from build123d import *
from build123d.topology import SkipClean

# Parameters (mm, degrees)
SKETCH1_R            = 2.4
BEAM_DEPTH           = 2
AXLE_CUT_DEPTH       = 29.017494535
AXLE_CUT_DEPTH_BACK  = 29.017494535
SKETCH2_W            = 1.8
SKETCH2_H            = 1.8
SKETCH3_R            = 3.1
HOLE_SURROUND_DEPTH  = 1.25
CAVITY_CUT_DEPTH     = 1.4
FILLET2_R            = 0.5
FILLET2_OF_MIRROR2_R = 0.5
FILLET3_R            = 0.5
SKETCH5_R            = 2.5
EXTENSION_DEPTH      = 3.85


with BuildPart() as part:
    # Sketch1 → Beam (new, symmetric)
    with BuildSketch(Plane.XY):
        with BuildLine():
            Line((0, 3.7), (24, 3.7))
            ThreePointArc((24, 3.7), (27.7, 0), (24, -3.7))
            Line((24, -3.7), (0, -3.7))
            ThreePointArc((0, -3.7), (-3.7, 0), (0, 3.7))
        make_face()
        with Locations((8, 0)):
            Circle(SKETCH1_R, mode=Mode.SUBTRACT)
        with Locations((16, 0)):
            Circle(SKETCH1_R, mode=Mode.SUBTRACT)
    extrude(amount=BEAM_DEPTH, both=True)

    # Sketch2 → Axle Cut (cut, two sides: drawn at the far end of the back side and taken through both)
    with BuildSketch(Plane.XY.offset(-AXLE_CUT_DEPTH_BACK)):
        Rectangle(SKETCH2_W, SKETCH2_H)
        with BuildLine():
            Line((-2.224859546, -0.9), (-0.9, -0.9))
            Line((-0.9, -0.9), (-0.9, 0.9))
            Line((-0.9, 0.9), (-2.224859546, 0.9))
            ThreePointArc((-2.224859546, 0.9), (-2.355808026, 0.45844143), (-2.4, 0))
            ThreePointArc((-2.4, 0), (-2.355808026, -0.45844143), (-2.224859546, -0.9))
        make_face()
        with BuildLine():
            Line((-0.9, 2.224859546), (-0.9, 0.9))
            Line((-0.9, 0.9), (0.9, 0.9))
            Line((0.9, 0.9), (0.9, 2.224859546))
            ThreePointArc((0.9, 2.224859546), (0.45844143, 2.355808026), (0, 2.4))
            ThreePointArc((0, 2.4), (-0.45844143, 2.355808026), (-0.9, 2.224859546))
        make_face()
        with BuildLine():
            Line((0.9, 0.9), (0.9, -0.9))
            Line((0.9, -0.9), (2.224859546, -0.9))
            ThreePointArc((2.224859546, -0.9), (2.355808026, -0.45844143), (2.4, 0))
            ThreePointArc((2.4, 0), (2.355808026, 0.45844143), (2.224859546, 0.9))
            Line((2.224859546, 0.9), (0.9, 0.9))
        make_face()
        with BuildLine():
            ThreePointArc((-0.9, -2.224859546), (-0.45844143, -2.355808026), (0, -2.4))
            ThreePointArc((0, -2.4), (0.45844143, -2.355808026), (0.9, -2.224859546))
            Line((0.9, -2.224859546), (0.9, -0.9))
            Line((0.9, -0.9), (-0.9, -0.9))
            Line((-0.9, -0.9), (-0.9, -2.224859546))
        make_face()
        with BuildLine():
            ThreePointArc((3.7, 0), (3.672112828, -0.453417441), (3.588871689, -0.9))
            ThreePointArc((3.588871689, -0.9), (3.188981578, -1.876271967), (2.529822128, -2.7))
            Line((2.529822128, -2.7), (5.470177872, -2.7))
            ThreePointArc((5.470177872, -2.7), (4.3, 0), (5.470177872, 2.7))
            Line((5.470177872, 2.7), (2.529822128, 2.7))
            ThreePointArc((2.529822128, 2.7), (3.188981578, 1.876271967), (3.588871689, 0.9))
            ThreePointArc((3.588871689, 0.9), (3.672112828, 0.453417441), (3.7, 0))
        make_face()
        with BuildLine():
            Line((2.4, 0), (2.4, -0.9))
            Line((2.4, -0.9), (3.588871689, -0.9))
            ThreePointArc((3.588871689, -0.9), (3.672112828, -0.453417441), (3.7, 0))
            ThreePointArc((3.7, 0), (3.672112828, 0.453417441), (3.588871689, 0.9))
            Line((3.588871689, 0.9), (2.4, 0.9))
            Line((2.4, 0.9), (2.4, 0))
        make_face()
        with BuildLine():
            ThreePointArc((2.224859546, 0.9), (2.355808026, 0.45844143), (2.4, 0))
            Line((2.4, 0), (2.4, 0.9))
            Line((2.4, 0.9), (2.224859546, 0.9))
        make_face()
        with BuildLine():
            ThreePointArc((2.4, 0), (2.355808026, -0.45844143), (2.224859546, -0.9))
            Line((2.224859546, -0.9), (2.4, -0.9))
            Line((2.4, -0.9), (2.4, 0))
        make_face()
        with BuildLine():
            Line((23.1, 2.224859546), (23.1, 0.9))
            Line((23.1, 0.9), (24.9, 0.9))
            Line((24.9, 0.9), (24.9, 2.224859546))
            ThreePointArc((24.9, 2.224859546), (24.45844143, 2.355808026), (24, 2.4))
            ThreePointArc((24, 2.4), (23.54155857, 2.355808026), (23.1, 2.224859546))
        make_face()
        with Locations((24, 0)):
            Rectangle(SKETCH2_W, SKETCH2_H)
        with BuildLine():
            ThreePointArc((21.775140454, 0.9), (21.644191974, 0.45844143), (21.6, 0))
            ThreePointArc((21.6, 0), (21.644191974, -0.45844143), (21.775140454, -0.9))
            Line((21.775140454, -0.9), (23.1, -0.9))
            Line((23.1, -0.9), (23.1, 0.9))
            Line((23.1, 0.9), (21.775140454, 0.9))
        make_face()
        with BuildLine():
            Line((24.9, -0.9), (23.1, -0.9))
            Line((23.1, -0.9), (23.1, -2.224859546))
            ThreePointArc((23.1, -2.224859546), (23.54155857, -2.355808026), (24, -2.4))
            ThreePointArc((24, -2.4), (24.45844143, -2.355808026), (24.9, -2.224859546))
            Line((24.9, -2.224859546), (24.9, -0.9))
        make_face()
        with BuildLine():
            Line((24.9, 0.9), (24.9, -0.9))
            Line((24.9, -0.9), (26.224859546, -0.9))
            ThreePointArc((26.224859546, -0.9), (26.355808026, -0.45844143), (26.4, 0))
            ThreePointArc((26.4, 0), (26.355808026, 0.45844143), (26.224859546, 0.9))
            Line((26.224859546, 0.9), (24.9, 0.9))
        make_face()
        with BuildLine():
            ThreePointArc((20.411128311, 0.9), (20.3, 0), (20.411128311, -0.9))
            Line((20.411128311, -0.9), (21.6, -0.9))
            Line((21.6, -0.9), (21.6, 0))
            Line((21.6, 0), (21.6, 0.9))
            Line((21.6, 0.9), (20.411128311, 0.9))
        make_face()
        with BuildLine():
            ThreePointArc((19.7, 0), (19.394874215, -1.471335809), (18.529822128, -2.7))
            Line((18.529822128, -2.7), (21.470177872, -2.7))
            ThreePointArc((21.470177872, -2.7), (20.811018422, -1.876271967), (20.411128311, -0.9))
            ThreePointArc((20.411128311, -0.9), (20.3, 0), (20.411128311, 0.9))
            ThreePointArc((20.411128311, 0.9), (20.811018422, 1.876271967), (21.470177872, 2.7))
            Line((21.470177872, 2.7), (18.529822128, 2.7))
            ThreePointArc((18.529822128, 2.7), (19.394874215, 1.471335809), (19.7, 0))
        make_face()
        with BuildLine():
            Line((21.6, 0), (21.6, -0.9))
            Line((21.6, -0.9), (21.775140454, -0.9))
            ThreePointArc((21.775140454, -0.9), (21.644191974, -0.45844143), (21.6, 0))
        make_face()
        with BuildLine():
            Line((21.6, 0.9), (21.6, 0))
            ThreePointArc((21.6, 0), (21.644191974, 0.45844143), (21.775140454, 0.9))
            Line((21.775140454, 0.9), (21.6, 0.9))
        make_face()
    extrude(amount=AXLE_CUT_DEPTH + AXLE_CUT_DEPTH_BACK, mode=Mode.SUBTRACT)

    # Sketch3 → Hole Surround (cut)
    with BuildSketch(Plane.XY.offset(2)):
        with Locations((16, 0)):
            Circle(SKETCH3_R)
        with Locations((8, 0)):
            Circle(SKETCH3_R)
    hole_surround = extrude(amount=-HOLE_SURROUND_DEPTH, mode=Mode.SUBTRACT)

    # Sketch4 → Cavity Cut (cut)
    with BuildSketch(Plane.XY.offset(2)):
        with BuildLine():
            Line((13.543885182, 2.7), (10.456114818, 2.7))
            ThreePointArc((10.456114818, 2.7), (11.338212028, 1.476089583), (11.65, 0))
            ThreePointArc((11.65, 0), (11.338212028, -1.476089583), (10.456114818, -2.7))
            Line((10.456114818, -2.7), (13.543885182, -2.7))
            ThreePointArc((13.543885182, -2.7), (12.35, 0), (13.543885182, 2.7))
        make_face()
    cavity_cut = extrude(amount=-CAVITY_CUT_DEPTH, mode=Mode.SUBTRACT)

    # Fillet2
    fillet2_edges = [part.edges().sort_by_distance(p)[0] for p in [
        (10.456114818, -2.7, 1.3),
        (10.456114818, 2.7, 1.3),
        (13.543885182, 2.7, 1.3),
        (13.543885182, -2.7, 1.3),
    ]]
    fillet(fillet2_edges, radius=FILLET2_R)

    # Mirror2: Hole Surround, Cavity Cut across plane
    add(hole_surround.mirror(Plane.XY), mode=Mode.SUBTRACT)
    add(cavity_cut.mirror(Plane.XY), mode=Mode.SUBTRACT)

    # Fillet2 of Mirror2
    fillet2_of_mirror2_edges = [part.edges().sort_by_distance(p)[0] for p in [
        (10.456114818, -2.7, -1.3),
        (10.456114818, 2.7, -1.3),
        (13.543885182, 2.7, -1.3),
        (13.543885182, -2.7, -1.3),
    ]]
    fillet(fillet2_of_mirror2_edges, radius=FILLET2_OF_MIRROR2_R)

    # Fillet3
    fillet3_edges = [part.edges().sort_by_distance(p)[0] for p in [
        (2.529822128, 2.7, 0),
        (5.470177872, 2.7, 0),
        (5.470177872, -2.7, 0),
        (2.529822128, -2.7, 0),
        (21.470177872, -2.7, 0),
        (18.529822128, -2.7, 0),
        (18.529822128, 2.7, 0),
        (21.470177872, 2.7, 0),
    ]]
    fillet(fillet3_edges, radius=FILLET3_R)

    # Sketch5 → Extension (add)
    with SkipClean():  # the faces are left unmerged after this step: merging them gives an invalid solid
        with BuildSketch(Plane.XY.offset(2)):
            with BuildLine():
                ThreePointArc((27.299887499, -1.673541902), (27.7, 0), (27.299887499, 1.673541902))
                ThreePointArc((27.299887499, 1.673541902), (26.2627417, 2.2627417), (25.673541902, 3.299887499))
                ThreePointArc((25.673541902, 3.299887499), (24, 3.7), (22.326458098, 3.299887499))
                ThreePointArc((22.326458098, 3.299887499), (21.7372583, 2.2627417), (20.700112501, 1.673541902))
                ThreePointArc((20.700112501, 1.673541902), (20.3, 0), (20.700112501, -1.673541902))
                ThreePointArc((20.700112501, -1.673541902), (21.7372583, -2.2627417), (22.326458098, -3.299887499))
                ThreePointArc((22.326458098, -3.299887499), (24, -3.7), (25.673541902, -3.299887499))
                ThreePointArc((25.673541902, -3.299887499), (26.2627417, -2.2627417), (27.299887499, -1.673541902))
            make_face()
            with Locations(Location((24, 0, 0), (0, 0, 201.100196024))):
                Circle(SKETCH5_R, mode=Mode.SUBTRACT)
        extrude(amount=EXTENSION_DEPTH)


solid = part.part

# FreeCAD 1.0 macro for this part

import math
import FreeCAD as App
import Part
import Sketcher

V = App.Vector


def edges_at(feature, points):
    """Names of the edges that pass closest to the given points."""
    edges = feature.Shape.Edges
    near = lambda p: min(range(len(edges)), key=lambda i: edges[i].distToShape(Part.Vertex(*p))[0])
    return sorted({f"Edge{near(p) + 1}" for p in points})

doc = App.newDocument("Part")
params = doc.addObject("Spreadsheet::Sheet", "Params")
for row, (alias, value) in enumerate([
    ("sketch1_diameter", "4.8 mm"),
    ("sketch1_radius", "3.7 mm"),
    ("sketch1_width", "24 mm"),
    ("pad1_length", "4 mm"),
    ("sketch2_radius", "2.4 mm"),
    ("sketch2_radius2", "3.7 mm"),
    ("sketch3_diameter", "6.2 mm"),
    ("pocket2_length", "1.25 mm"),
    ("sketch4_radius", "3.65 mm"),
    ("pocket3_length", "1.4 mm"),
    ("fillet_radius", "0.5 mm"),
    ("fillet2_radius", "0.5 mm"),
    ("fillet3_radius", "0.5 mm"),
    ("sketch5_diameter", "5 mm"),
    ("sketch5_radius", "3.7 mm"),
    ("pad2_length", "3.85 mm"),
], start=1):
    params.set(f"A{row}", alias)
    params.set(f"B{row}", "=" + value)
    params.setAlias(f"B{row}", alias)

body = doc.addObject("PartDesign::Body", "Body")

sketch1 = body.newObject("Sketcher::SketchObject", "Sketch")
sketch1.AttachmentSupport = (doc.getObject("XY_Plane"), [""])
sketch1.MapMode = "FlatFace"
sketch1.addGeometry(Part.LineSegment(V(24, 3.7, 0), V(0, 3.7, 0)), False)
sketch1.addGeometry(Part.ArcOfCircle(Part.Circle(V(0, 0, 0), V(0, 0, 1), 3.7), math.radians(90), math.radians(270)), False)
sketch1.addGeometry(Part.LineSegment(V(0, -3.7, 0), V(24, -3.7, 0)), False)
sketch1.addGeometry(Part.ArcOfCircle(Part.Circle(V(24, 0, 0), V(0, 0, 1), 3.7), math.radians(-90), math.radians(90)), False)
sketch1.addGeometry(Part.Circle(V(16, 0, 0), V(0, 0, 1), 2.4), False)
sketch1.addGeometry(Part.Circle(V(8, 0, 0), V(0, 0, 1), 2.4), False)
sketch1.addConstraint(Sketcher.Constraint("Tangent", 0, 2, 1, 1))
sketch1.addConstraint(Sketcher.Constraint("Tangent", 1, 2, 2, 1))
sketch1.addConstraint(Sketcher.Constraint("Tangent", 2, 2, 3, 1))
sketch1.addConstraint(Sketcher.Constraint("Tangent", 3, 2, 0, 1))
sketch1.addConstraint(Sketcher.Constraint("Horizontal", 0))
sketch1.addConstraint(Sketcher.Constraint("Horizontal", 2))
sketch1.addConstraint(Sketcher.Constraint("Coincident", 1, 3, -1, 1))
sketch1.addConstraint(Sketcher.Constraint("Equal", 4, 5))
sketch1.addConstraint(Sketcher.Constraint("PointOnObject", 4, 3, -1))
sketch1.addConstraint(Sketcher.Constraint("PointOnObject", 5, 3, -1))
sketch1.addConstraint(Sketcher.Constraint("Diameter", 4, 4.8))
sketch1.addConstraint(Sketcher.Constraint("Radius", 1, 3.7))
sketch1.addConstraint(Sketcher.Constraint("DistanceX", 0, 2, 0, 1, 24.0))
sketch1.addConstraint(Sketcher.Constraint("DistanceX", -1, 1, 4, 3, 16.0))
sketch1.addConstraint(Sketcher.Constraint("DistanceX", -1, 1, 5, 3, 8.0))
sketch1.setExpression("Constraints[10]", "Params.sketch1_diameter")
sketch1.setExpression("Constraints[11]", "Params.sketch1_radius")
sketch1.setExpression("Constraints[12]", "Params.sketch1_width")
pad1 = body.newObject("PartDesign::Pad", "Pad")
pad1.Profile = sketch1
pad1.setExpression("Length", "Params.pad1_length")
pad1.Midplane = True

sketch2 = body.newObject("Sketcher::SketchObject", "Sketch001")
sketch2.AttachmentSupport = (doc.getObject("XY_Plane"), [""])
sketch2.MapMode = "FlatFace"
sketch2.addGeometry(Part.LineSegment(V(0.9, 0.9, 0), V(0.9, 2.2, 0)), False)
sketch2.addGeometry(Part.ArcOfCircle(Part.Circle(V(0, 0, 0), V(0, 0, 1), 2.4), math.radians(68), math.radians(90)), False)
sketch2.addGeometry(Part.ArcOfCircle(Part.Circle(V(0, 0, 0), V(0, 0, 1), 2.4), math.radians(90), math.radians(112)), False)
sketch2.addGeometry(Part.LineSegment(V(-0.9, 2.2, 0), V(-0.9, 0.9, 0)), False)
sketch2.addGeometry(Part.LineSegment(V(-0.9, 0.9, 0), V(-2.2, 0.9, 0)), False)
sketch2.addGeometry(Part.ArcOfCircle(Part.Circle(V(0, 0, 0), V(0, 0, 1), 2.4), math.radians(158), math.radians(180)), False)
sketch2.addGeometry(Part.ArcOfCircle(Part.Circle(V(0, 0, 0), V(0, 0, 1), 2.4), math.radians(180), math.radians(202)), False)
sketch2.addGeometry(Part.LineSegment(V(-2.2, -0.9, 0), V(-0.9, -0.9, 0)), False)
sketch2.addGeometry(Part.LineSegment(V(-0.9, -0.9, 0), V(-0.9, -2.2, 0)), False)
sketch2.addGeometry(Part.ArcOfCircle(Part.Circle(V(0, 0, 0), V(0, 0, 1), 2.4), math.radians(-112), math.radians(-90)), False)
sketch2.addGeometry(Part.ArcOfCircle(Part.Circle(V(0, 0, 0), V(0, 0, 1), 2.4), math.radians(-90), math.radians(-68)), False)
sketch2.addGeometry(Part.LineSegment(V(0.9, -2.2, 0), V(0.9, -0.9, 0)), False)
sketch2.addGeometry(Part.LineSegment(V(0.9, -0.9, 0), V(3.6, -0.9, 0)), False)
sketch2.addGeometry(Part.ArcOfCircle(Part.Circle(V(0, 0, 0), V(0, 0, 1), 3.7), math.radians(-47), math.radians(-14)), False)
sketch2.addGeometry(Part.LineSegment(V(2.5, -2.7, 0), V(5.5, -2.7, 0)), False)
sketch2.addGeometry(Part.ArcOfCircle(Part.Circle(V(8, 0, 0), V(0, 0, 1), 3.7), math.radians(133), math.radians(227)), False)
sketch2.addGeometry(Part.LineSegment(V(5.5, 2.7, 0), V(2.5, 2.7, 0)), False)
sketch2.addGeometry(Part.ArcOfCircle(Part.Circle(V(0, 0, 0), V(0, 0, 1), 3.7), math.radians(14), math.radians(47)), False)
sketch2.addGeometry(Part.LineSegment(V(3.6, 0.9, 0), V(0.9, 0.9, 0)), False)
sketch2.addGeometry(Part.LineSegment(V(23.1, 2.2, 0), V(23.1, 0.9, 0)), False)
sketch2.addGeometry(Part.LineSegment(V(23.1, 0.9, 0), V(20.4, 0.9, 0)), False)
sketch2.addGeometry(Part.ArcOfCircle(Part.Circle(V(24, 0, 0), V(0, 0, 1), 3.7), math.radians(133), math.radians(166)), False)
sketch2.addGeometry(Part.LineSegment(V(21.5, 2.7, 0), V(18.5, 2.7, 0)), False)
sketch2.addGeometry(Part.ArcOfCircle(Part.Circle(V(16, 0, 0), V(0, 0, 1), 3.7), math.radians(0), math.radians(47)), False)
sketch2.addGeometry(Part.ArcOfCircle(Part.Circle(V(16, 0, 0), V(0, 0, 1), 3.7), math.radians(-47), math.radians(0)), False)
sketch2.addGeometry(Part.LineSegment(V(18.5, -2.7, 0), V(21.5, -2.7, 0)), False)
sketch2.addGeometry(Part.ArcOfCircle(Part.Circle(V(24, 0, 0), V(0, 0, 1), 3.7), math.radians(-166), math.radians(-133)), False)
sketch2.addGeometry(Part.LineSegment(V(20.4, -0.9, 0), V(23.1, -0.9, 0)), False)
sketch2.addGeometry(Part.LineSegment(V(23.1, -0.9, 0), V(23.1, -2.2, 0)), False)
sketch2.addGeometry(Part.ArcOfCircle(Part.Circle(V(24, 0, 0), V(0, 0, 1), 2.4), math.radians(-112), math.radians(-90)), False)
sketch2.addGeometry(Part.ArcOfCircle(Part.Circle(V(24, 0, 0), V(0, 0, 1), 2.4), math.radians(-90), math.radians(-68)), False)
sketch2.addGeometry(Part.LineSegment(V(24.9, -2.2, 0), V(24.9, -0.9, 0)), False)
sketch2.addGeometry(Part.LineSegment(V(24.9, -0.9, 0), V(26.2, -0.9, 0)), False)
sketch2.addGeometry(Part.ArcOfCircle(Part.Circle(V(24, 0, 0), V(0, 0, 1), 2.4), math.radians(-22), math.radians(0)), False)
sketch2.addGeometry(Part.ArcOfCircle(Part.Circle(V(24, 0, 0), V(0, 0, 1), 2.4), math.radians(0), math.radians(22)), False)
sketch2.addGeometry(Part.LineSegment(V(26.2, 0.9, 0), V(24.9, 0.9, 0)), False)
sketch2.addGeometry(Part.LineSegment(V(24.9, 0.9, 0), V(24.9, 2.2, 0)), False)
sketch2.addGeometry(Part.ArcOfCircle(Part.Circle(V(24, 0, 0), V(0, 0, 1), 2.4), math.radians(68), math.radians(90)), False)
sketch2.addGeometry(Part.ArcOfCircle(Part.Circle(V(24, 0, 0), V(0, 0, 1), 2.4), math.radians(90), math.radians(112)), False)
sketch2.addConstraint(Sketcher.Constraint("Coincident", 0, 2, 1, 1))
sketch2.addConstraint(Sketcher.Constraint("Tangent", 1, 2, 2, 1))
sketch2.addConstraint(Sketcher.Constraint("Coincident", 2, 2, 3, 1))
sketch2.addConstraint(Sketcher.Constraint("Coincident", 3, 2, 4, 1))
sketch2.addConstraint(Sketcher.Constraint("Coincident", 4, 2, 5, 1))
sketch2.addConstraint(Sketcher.Constraint("Tangent", 5, 2, 6, 1))
sketch2.addConstraint(Sketcher.Constraint("Coincident", 6, 2, 7, 1))
sketch2.addConstraint(Sketcher.Constraint("Coincident", 7, 2, 8, 1))
sketch2.addConstraint(Sketcher.Constraint("Coincident", 8, 2, 9, 1))
sketch2.addConstraint(Sketcher.Constraint("Tangent", 9, 2, 10, 1))
sketch2.addConstraint(Sketcher.Constraint("Coincident", 10, 2, 11, 1))
sketch2.addConstraint(Sketcher.Constraint("Coincident", 11, 2, 12, 1))
sketch2.addConstraint(Sketcher.Constraint("Coincident", 12, 2, 13, 2))
sketch2.addConstraint(Sketcher.Constraint("Coincident", 13, 1, 14, 1))
sketch2.addConstraint(Sketcher.Constraint("Coincident", 14, 2, 15, 2))
sketch2.addConstraint(Sketcher.Constraint("Coincident", 15, 1, 16, 1))
sketch2.addConstraint(Sketcher.Constraint("Coincident", 16, 2, 17, 2))
sketch2.addConstraint(Sketcher.Constraint("Coincident", 17, 1, 18, 1))
sketch2.addConstraint(Sketcher.Constraint("Coincident", 18, 2, 0, 1))
sketch2.addConstraint(Sketcher.Constraint("Coincident", 19, 2, 20, 1))
sketch2.addConstraint(Sketcher.Constraint("Coincident", 20, 2, 21, 2))
sketch2.addConstraint(Sketcher.Constraint("Coincident", 21, 1, 22, 1))
sketch2.addConstraint(Sketcher.Constraint("Coincident", 22, 2, 23, 2))
sketch2.addConstraint(Sketcher.Constraint("Tangent", 23, 1, 24, 2))
sketch2.addConstraint(Sketcher.Constraint("Coincident", 24, 1, 25, 1))
sketch2.addConstraint(Sketcher.Constraint("Coincident", 25, 2, 26, 2))
sketch2.addConstraint(Sketcher.Constraint("Coincident", 26, 1, 27, 1))
sketch2.addConstraint(Sketcher.Constraint("Coincident", 27, 2, 28, 1))
sketch2.addConstraint(Sketcher.Constraint("Coincident", 28, 2, 29, 1))
sketch2.addConstraint(Sketcher.Constraint("Tangent", 29, 2, 30, 1))
sketch2.addConstraint(Sketcher.Constraint("Coincident", 30, 2, 31, 1))
sketch2.addConstraint(Sketcher.Constraint("Coincident", 31, 2, 32, 1))
sketch2.addConstraint(Sketcher.Constraint("Coincident", 32, 2, 33, 1))
sketch2.addConstraint(Sketcher.Constraint("Tangent", 33, 2, 34, 1))
sketch2.addConstraint(Sketcher.Constraint("Coincident", 34, 2, 35, 1))
sketch2.addConstraint(Sketcher.Constraint("Coincident", 35, 2, 36, 1))
sketch2.addConstraint(Sketcher.Constraint("Coincident", 36, 2, 37, 1))
sketch2.addConstraint(Sketcher.Constraint("Tangent", 37, 2, 38, 1))
sketch2.addConstraint(Sketcher.Constraint("Coincident", 38, 2, 19, 1))
sketch2.addConstraint(Sketcher.Constraint("Vertical", 0))
sketch2.addConstraint(Sketcher.Constraint("Vertical", 3))
sketch2.addConstraint(Sketcher.Constraint("Horizontal", 4))
sketch2.addConstraint(Sketcher.Constraint("Horizontal", 7))
sketch2.addConstraint(Sketcher.Constraint("Vertical", 8))
sketch2.addConstraint(Sketcher.Constraint("Vertical", 11))
sketch2.addConstraint(Sketcher.Constraint("Horizontal", 12))
sketch2.addConstraint(Sketcher.Constraint("Horizontal", 14))
sketch2.addConstraint(Sketcher.Constraint("Horizontal", 16))
sketch2.addConstraint(Sketcher.Constraint("Horizontal", 18))
sketch2.addConstraint(Sketcher.Constraint("Vertical", 19))
sketch2.addConstraint(Sketcher.Constraint("Horizontal", 20))
sketch2.addConstraint(Sketcher.Constraint("Horizontal", 22))
sketch2.addConstraint(Sketcher.Constraint("Horizontal", 25))
sketch2.addConstraint(Sketcher.Constraint("Horizontal", 27))
sketch2.addConstraint(Sketcher.Constraint("Vertical", 28))
sketch2.addConstraint(Sketcher.Constraint("Vertical", 31))
sketch2.addConstraint(Sketcher.Constraint("Horizontal", 32))
sketch2.addConstraint(Sketcher.Constraint("Horizontal", 35))
sketch2.addConstraint(Sketcher.Constraint("Vertical", 36))
sketch2.addConstraint(Sketcher.Constraint("Coincident", 1, 3, -1, 1))
sketch2.addConstraint(Sketcher.Constraint("Coincident", 5, 3, -1, 1))
sketch2.addConstraint(Sketcher.Constraint("Coincident", 9, 3, -1, 1))
sketch2.addConstraint(Sketcher.Constraint("Coincident", 13, 3, -1, 1))
sketch2.addConstraint(Sketcher.Constraint("Coincident", 17, 3, -1, 1))
sketch2.addConstraint(Sketcher.Constraint("Coincident", 26, 3, 21, 3))
sketch2.addConstraint(Sketcher.Constraint("Coincident", 29, 3, 21, 3))
sketch2.addConstraint(Sketcher.Constraint("Coincident", 33, 3, 21, 3))
sketch2.addConstraint(Sketcher.Constraint("Coincident", 37, 3, 21, 3))
sketch2.addConstraint(Sketcher.Constraint("Equal", 1, 2))
sketch2.addConstraint(Sketcher.Constraint("Equal", 2, 5))
sketch2.addConstraint(Sketcher.Constraint("Equal", 5, 6))
sketch2.addConstraint(Sketcher.Constraint("Equal", 6, 9))
sketch2.addConstraint(Sketcher.Constraint("Equal", 9, 10))
sketch2.addConstraint(Sketcher.Constraint("Equal", 13, 15))
sketch2.addConstraint(Sketcher.Constraint("Equal", 15, 17))
sketch2.addConstraint(Sketcher.Constraint("Equal", 17, 21))
sketch2.addConstraint(Sketcher.Constraint("Equal", 21, 23))
sketch2.addConstraint(Sketcher.Constraint("Equal", 23, 24))
sketch2.addConstraint(Sketcher.Constraint("Equal", 24, 26))
sketch2.addConstraint(Sketcher.Constraint("Equal", 10, 29))
sketch2.addConstraint(Sketcher.Constraint("Equal", 29, 30))
sketch2.addConstraint(Sketcher.Constraint("Equal", 30, 33))
sketch2.addConstraint(Sketcher.Constraint("Equal", 33, 34))
sketch2.addConstraint(Sketcher.Constraint("Equal", 34, 37))
sketch2.addConstraint(Sketcher.Constraint("Equal", 37, 38))
sketch2.addConstraint(Sketcher.Constraint("Symmetric", 3, 2, 11, 2, -1, 1))
sketch2.addConstraint(Sketcher.Constraint("Symmetric", 7, 2, 18, 2, -1, 1))
sketch2.addConstraint(Sketcher.Constraint("Symmetric", 7, 2, 11, 2, -2))
sketch2.addConstraint(Sketcher.Constraint("Symmetric", 14, 2, 15, 1, -1))
sketch2.addConstraint(Sketcher.Constraint("Symmetric", 22, 2, 24, 1, -1))
sketch2.addConstraint(Sketcher.Constraint("Symmetric", 20, 2, 26, 1, -1))
sketch2.addConstraint(Sketcher.Constraint("Symmetric", 31, 2, 35, 2, -1))
sketch2.addConstraint(Sketcher.Constraint("PointOnObject", 1, 2, -2))
sketch2.addConstraint(Sketcher.Constraint("PointOnObject", 5, 2, -1))
sketch2.addConstraint(Sketcher.Constraint("PointOnObject", 9, 2, -2))
sketch2.addConstraint(Sketcher.Constraint("PointOnObject", 23, 1, -1))
sketch2.addConstraint(Sketcher.Constraint("PointOnObject", 33, 2, -1))
sketch2.addConstraint(Sketcher.Constraint("Horizontal", 18, 2, 19, 2))
sketch2.addConstraint(Sketcher.Constraint("Horizontal", 16, 2, 21, 1))
sketch2.addConstraint(Sketcher.Constraint("Horizontal", 10, 2, 28, 2))
sketch2.addConstraint(Sketcher.Constraint("Horizontal", 28, 2, 30, 2))
sketch2.addConstraint(Sketcher.Constraint("Horizontal", 27, 2, 31, 2))
sketch2.addConstraint(Sketcher.Constraint("Horizontal", 36, 2, 38, 2))
sketch2.addConstraint(Sketcher.Constraint("Vertical", 38, 3, 29, 2))
sketch2.addConstraint(Sketcher.Constraint("Vertical", 29, 2, 37, 2))
sketch2.addConstraint(Sketcher.Constraint("Equal", 16, 22))
sketch2.addConstraint(Sketcher.Constraint("Equal", 35, 0))
sketch2.addConstraint(Sketcher.Constraint("Radius", 1, 2.4))
sketch2.addConstraint(Sketcher.Constraint("Radius", 13, 3.7))
sketch2.addConstraint(Sketcher.Constraint("DistanceX", -1, 1, 15, 3, 8.0))
sketch2.addConstraint(Sketcher.Constraint("DistanceX", -1, 1, 21, 3, 24.0))
sketch2.addConstraint(Sketcher.Constraint("DistanceX", -1, 1, 0, 2, 0.9))
sketch2.addConstraint(Sketcher.Constraint("DistanceY", 13, 1, -1, 1, 2.7))
sketch2.setExpression("Constraints[107]", "Params.sketch2_radius")
sketch2.setExpression("Constraints[108]", "Params.sketch2_radius2")
pocket1 = body.newObject("PartDesign::Pocket", "Pocket")
pocket1.Profile = sketch2
pocket1.Type = "ThroughAll"
pocket1.Midplane = True

sketch3 = body.newObject("Sketcher::SketchObject", "Sketch002")
sketch3.AttachmentSupport = (doc.getObject("XY_Plane"), [""])
sketch3.MapMode = "FlatFace"
sketch3.AttachmentOffset = App.Placement(V(0, 0, 2), App.Rotation())
sketch3.addGeometry(Part.Circle(V(16, 0, 0), V(0, 0, 1), 3.1), False)
sketch3.addGeometry(Part.Circle(V(8, 0, 0), V(0, 0, 1), 3.1), False)
sketch3.addConstraint(Sketcher.Constraint("Equal", 0, 1))
sketch3.addConstraint(Sketcher.Constraint("PointOnObject", 0, 3, -1))
sketch3.addConstraint(Sketcher.Constraint("PointOnObject", 1, 3, -1))
sketch3.addConstraint(Sketcher.Constraint("Diameter", 0, 6.2))
sketch3.addConstraint(Sketcher.Constraint("DistanceX", -1, 1, 0, 3, 16.0))
sketch3.addConstraint(Sketcher.Constraint("DistanceX", -1, 1, 1, 3, 8.0))
sketch3.setExpression("Constraints[3]", "Params.sketch3_diameter")
pocket2 = body.newObject("PartDesign::Pocket", "Pocket001")
pocket2.Profile = sketch3
pocket2.setExpression("Length", "Params.pocket2_length")

sketch4 = body.newObject("Sketcher::SketchObject", "Sketch003")
sketch4.AttachmentSupport = (doc.getObject("XY_Plane"), [""])
sketch4.MapMode = "FlatFace"
sketch4.AttachmentOffset = App.Placement(V(0, 0, 2), App.Rotation())
sketch4.addGeometry(Part.LineSegment(V(13.5, 2.7, 0), V(10.5, 2.7, 0)), False)
sketch4.addGeometry(Part.ArcOfCircle(Part.Circle(V(8, 0, 0), V(0, 0, 1), 3.6), math.radians(0), math.radians(48)), False)
sketch4.addGeometry(Part.ArcOfCircle(Part.Circle(V(8, 0, 0), V(0, 0, 1), 3.6), math.radians(-48), math.radians(0)), False)
sketch4.addGeometry(Part.LineSegment(V(10.5, -2.7, 0), V(13.5, -2.7, 0)), False)
sketch4.addGeometry(Part.ArcOfCircle(Part.Circle(V(16, 0, 0), V(0, 0, 1), 3.6), math.radians(132), math.radians(228)), False)
sketch4.addConstraint(Sketcher.Constraint("Coincident", 0, 2, 1, 2))
sketch4.addConstraint(Sketcher.Constraint("Tangent", 1, 1, 2, 2))
sketch4.addConstraint(Sketcher.Constraint("Coincident", 2, 1, 3, 1))
sketch4.addConstraint(Sketcher.Constraint("Coincident", 3, 2, 4, 2))
sketch4.addConstraint(Sketcher.Constraint("Coincident", 4, 1, 0, 1))
sketch4.addConstraint(Sketcher.Constraint("Horizontal", 0))
sketch4.addConstraint(Sketcher.Constraint("Horizontal", 3))
sketch4.addConstraint(Sketcher.Constraint("Equal", 1, 2))
sketch4.addConstraint(Sketcher.Constraint("Equal", 2, 4))
sketch4.addConstraint(Sketcher.Constraint("Symmetric", 0, 2, 2, 1, -1))
sketch4.addConstraint(Sketcher.Constraint("PointOnObject", 4, 3, -1))
sketch4.addConstraint(Sketcher.Constraint("PointOnObject", 1, 1, -1))
sketch4.addConstraint(Sketcher.Constraint("Radius", 1, 3.65))
sketch4.addConstraint(Sketcher.Constraint("DistanceX", -1, 1, 1, 3, 8.0))
sketch4.addConstraint(Sketcher.Constraint("DistanceX", -1, 1, 4, 3, 16.0))
sketch4.addConstraint(Sketcher.Constraint("DistanceY", -1, 1, 0, 2, 2.7))
sketch4.setExpression("Constraints[12]", "Params.sketch4_radius")
pocket3 = body.newObject("PartDesign::Pocket", "Pocket002")
pocket3.Profile = sketch4
pocket3.setExpression("Length", "Params.pocket3_length")
doc.recompute()

fillet = body.newObject("PartDesign::Fillet", "Fillet")
fillet.Base = (pocket3, edges_at(pocket3, [
    (10.456, -2.7, 1.3),
    (10.456, 2.7, 1.3),
    (13.544, 2.7, 1.3),
    (13.544, -2.7, 1.3),
]))
fillet.setExpression("Radius", "Params.fillet_radius")
doc.recompute()

mirrored = body.newObject("PartDesign::Mirrored", "Mirrored")
mirrored.Originals = [pocket2, pocket3]
mirrored.MirrorPlane = (doc.getObject("XY_Plane"), [""])
body.Tip = mirrored
doc.recompute()

fillet2 = body.newObject("PartDesign::Fillet", "Fillet001")
fillet2.Base = (mirrored, edges_at(mirrored, [
    (10.456, -2.7, -1.3),
    (10.456, 2.7, -1.3),
    (13.544, 2.7, -1.3),
    (13.544, -2.7, -1.3),
]))
fillet2.setExpression("Radius", "Params.fillet2_radius")
doc.recompute()

fillet3 = body.newObject("PartDesign::Fillet", "Fillet002")
fillet3.Base = (fillet2, edges_at(fillet2, [
    (2.53, 2.7, 0),
    (5.47, 2.7, 0),
    (5.47, -2.7, 0),
    (2.53, -2.7, 0),
    (21.47, -2.7, 0),
    (18.53, -2.7, 0),
    (18.53, 2.7, 0),
    (21.47, 2.7, 0),
]))
fillet3.setExpression("Radius", "Params.fillet3_radius")

sketch5 = body.newObject("Sketcher::SketchObject", "Sketch004")
sketch5.AttachmentSupport = (doc.getObject("XY_Plane"), [""])
sketch5.MapMode = "FlatFace"
sketch5.AttachmentOffset = App.Placement(V(0, 0, 2), App.Rotation())
sketch5.addGeometry(Part.ArcOfCircle(Part.Circle(V(24, 0, 0), V(0, 0, 1), 3.7), math.radians(-27), math.radians(27)), False)
sketch5.addGeometry(Part.ArcOfCircle(Part.Circle(V(27.9, 3.9, 0), V(0, 0, 1), 2.2), math.radians(-166), math.radians(-104)), False)
sketch5.addGeometry(Part.ArcOfCircle(Part.Circle(V(24, 0, 0), V(0, 0, 1), 3.7), math.radians(63), math.radians(117)), False)
sketch5.addGeometry(Part.ArcOfCircle(Part.Circle(V(20.1, 3.9, 0), V(0, 0, 1), 2.2), math.radians(-76), math.radians(-14)), False)
sketch5.addGeometry(Part.ArcOfCircle(Part.Circle(V(24, 0, 0), V(0, 0, 1), 3.7), math.radians(153), math.radians(207)), False)
sketch5.addGeometry(Part.ArcOfCircle(Part.Circle(V(20.1, -3.9, 0), V(0, 0, 1), 2.2), math.radians(14), math.radians(76)), False)
sketch5.addGeometry(Part.ArcOfCircle(Part.Circle(V(24, 0, 0), V(0, 0, 1), 3.7), math.radians(-117), math.radians(-63)), False)
sketch5.addGeometry(Part.ArcOfCircle(Part.Circle(V(27.9, -3.9, 0), V(0, 0, 1), 2.2), math.radians(104), math.radians(166)), False)
sketch5.addGeometry(Part.Circle(V(24, 0, 0), V(0, 0, 1), 2.5), False)
sketch5.addConstraint(Sketcher.Constraint("Coincident", 0, 2, 1, 2))
sketch5.addConstraint(Sketcher.Constraint("Coincident", 1, 1, 2, 1))
sketch5.addConstraint(Sketcher.Constraint("Coincident", 2, 2, 3, 2))
sketch5.addConstraint(Sketcher.Constraint("Coincident", 3, 1, 4, 1))
sketch5.addConstraint(Sketcher.Constraint("Coincident", 4, 2, 5, 2))
sketch5.addConstraint(Sketcher.Constraint("Coincident", 5, 1, 6, 1))
sketch5.addConstraint(Sketcher.Constraint("Coincident", 6, 2, 7, 2))
sketch5.addConstraint(Sketcher.Constraint("Coincident", 7, 1, 0, 1))
sketch5.addConstraint(Sketcher.Constraint("Coincident", 2, 3, 0, 3))
sketch5.addConstraint(Sketcher.Constraint("Coincident", 4, 3, 0, 3))
sketch5.addConstraint(Sketcher.Constraint("Coincident", 6, 3, 0, 3))
sketch5.addConstraint(Sketcher.Constraint("Coincident", 8, 3, 0, 3))
sketch5.addConstraint(Sketcher.Constraint("Equal", 0, 2))
sketch5.addConstraint(Sketcher.Constraint("Equal", 1, 3))
sketch5.addConstraint(Sketcher.Constraint("Equal", 2, 4))
sketch5.addConstraint(Sketcher.Constraint("Equal", 3, 5))
sketch5.addConstraint(Sketcher.Constraint("Equal", 4, 6))
sketch5.addConstraint(Sketcher.Constraint("Equal", 5, 7))
sketch5.addConstraint(Sketcher.Constraint("Symmetric", 3, 3, 5, 3, -1))
sketch5.addConstraint(Sketcher.Constraint("Symmetric", 1, 3, 7, 3, -1))
sketch5.addConstraint(Sketcher.Constraint("PointOnObject", 0, 3, -1))
sketch5.addConstraint(Sketcher.Constraint("Horizontal", 1, 3, 3, 3))
sketch5.addConstraint(Sketcher.Constraint("Horizontal", 1, 1, 2, 2))
sketch5.addConstraint(Sketcher.Constraint("Diameter", 8, 5.0))
sketch5.addConstraint(Sketcher.Constraint("Radius", 0, 3.7))
sketch5.addConstraint(Sketcher.Constraint("DistanceX", -1, 1, 0, 3, 24.0))
sketch5.addConstraint(Sketcher.Constraint("Radius", 1, 2.24601))
sketch5.addConstraint(Sketcher.Constraint("DistanceX", -1, 1, 1, 3, 27.850911))
sketch5.addConstraint(Sketcher.Constraint("DistanceY", -1, 1, 1, 3, 3.850911))
sketch5.setExpression("Constraints[23]", "Params.sketch5_diameter")
sketch5.setExpression("Constraints[24]", "Params.sketch5_radius")
pad2 = body.newObject("PartDesign::Pad", "Pad001")
pad2.Profile = sketch5
pad2.setExpression("Length", "Params.pad2_length")

doc.recompute()
